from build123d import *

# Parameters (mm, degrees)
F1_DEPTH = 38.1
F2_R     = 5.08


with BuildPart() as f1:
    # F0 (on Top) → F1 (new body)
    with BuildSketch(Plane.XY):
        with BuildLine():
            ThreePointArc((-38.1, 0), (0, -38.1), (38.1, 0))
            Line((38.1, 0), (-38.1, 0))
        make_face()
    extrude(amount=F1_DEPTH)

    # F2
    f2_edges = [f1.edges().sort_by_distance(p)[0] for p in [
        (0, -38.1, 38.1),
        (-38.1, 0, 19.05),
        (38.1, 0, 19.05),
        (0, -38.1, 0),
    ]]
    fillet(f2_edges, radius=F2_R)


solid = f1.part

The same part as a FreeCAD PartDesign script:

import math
import FreeCAD as App
import Part
import Sketcher
Q = App.Units.Quantity


def edges_at(feature, points):
    """Names of the edges that pass closest to the given points."""
    edges = feature.Shape.Edges
    near = lambda p: min(range(len(edges)), key=lambda i: edges[i].distToShape(Part.Vertex(*p))[0])
    return sorted({f"Edge{near(p) + 1}" for p in points})

doc = App.newDocument("Part")
params = doc.addObject("Spreadsheet::Sheet", "Params")
for row, (alias, value) in enumerate([
    ("sketch1_radius", "1.5 in"),
    ("pad1_length", "1.5 in"),
    ("fillet_radius", "0.2 in"),
], start=1):
    params.set(f"A{row}", alias)
    params.set(f"B{row}", "=" + value)
    params.setAlias(f"B{row}", alias)

body = doc.addObject("PartDesign::Body", "Body")

# Sketch on XY plane
sketch1 = body.newObject("Sketcher::SketchObject", "Sketch")
sketch1.AttachmentSupport = (doc.getObject("XY_Plane"), [""])
sketch1.MapMode = "FlatFace"
sketch1.addGeometry([
    Part.ArcOfCircle(Part.Circle(App.Vector(0, 0, 0), App.Vector(0, 0, 1), 38), math.radians(180), math.radians(360)),
    Part.LineSegment(App.Vector(38, 0, 0), App.Vector(-38, 0, 0)),
], False)
sketch1.addConstraint([
    Sketcher.Constraint("Coincident", 0, 1, 1, 2),
    Sketcher.Constraint("Coincident", 1, 1, 0, 2),
    Sketcher.Constraint("Horizontal", 1),
    Sketcher.Constraint("Coincident", 0, 3, -1, 1),
    Sketcher.Constraint("PointOnObject", 0, 1, -1),
    Sketcher.Constraint("Radius", 0, Q("1.5 in")),
])
sketch1.setExpression("Constraints[5]", "Params.sketch1_radius")
pad1 = body.newObject("PartDesign::Pad", "Pad")
pad1.Profile = sketch1
pad1.setExpression("Length", "Params.pad1_length")
doc.recompute()

fillet = body.newObject("PartDesign::Fillet", "Fillet")
fillet.Base = (pad1, edges_at(pad1, [
    (0, -38.1, 38.1),
    (-38.1, 0, 19.05),
    (38.1, 0, 19.05),
    (0, -38.1, 0),
]))
fillet.setExpression("Radius", "Params.fillet_radius")

doc.recompute()
